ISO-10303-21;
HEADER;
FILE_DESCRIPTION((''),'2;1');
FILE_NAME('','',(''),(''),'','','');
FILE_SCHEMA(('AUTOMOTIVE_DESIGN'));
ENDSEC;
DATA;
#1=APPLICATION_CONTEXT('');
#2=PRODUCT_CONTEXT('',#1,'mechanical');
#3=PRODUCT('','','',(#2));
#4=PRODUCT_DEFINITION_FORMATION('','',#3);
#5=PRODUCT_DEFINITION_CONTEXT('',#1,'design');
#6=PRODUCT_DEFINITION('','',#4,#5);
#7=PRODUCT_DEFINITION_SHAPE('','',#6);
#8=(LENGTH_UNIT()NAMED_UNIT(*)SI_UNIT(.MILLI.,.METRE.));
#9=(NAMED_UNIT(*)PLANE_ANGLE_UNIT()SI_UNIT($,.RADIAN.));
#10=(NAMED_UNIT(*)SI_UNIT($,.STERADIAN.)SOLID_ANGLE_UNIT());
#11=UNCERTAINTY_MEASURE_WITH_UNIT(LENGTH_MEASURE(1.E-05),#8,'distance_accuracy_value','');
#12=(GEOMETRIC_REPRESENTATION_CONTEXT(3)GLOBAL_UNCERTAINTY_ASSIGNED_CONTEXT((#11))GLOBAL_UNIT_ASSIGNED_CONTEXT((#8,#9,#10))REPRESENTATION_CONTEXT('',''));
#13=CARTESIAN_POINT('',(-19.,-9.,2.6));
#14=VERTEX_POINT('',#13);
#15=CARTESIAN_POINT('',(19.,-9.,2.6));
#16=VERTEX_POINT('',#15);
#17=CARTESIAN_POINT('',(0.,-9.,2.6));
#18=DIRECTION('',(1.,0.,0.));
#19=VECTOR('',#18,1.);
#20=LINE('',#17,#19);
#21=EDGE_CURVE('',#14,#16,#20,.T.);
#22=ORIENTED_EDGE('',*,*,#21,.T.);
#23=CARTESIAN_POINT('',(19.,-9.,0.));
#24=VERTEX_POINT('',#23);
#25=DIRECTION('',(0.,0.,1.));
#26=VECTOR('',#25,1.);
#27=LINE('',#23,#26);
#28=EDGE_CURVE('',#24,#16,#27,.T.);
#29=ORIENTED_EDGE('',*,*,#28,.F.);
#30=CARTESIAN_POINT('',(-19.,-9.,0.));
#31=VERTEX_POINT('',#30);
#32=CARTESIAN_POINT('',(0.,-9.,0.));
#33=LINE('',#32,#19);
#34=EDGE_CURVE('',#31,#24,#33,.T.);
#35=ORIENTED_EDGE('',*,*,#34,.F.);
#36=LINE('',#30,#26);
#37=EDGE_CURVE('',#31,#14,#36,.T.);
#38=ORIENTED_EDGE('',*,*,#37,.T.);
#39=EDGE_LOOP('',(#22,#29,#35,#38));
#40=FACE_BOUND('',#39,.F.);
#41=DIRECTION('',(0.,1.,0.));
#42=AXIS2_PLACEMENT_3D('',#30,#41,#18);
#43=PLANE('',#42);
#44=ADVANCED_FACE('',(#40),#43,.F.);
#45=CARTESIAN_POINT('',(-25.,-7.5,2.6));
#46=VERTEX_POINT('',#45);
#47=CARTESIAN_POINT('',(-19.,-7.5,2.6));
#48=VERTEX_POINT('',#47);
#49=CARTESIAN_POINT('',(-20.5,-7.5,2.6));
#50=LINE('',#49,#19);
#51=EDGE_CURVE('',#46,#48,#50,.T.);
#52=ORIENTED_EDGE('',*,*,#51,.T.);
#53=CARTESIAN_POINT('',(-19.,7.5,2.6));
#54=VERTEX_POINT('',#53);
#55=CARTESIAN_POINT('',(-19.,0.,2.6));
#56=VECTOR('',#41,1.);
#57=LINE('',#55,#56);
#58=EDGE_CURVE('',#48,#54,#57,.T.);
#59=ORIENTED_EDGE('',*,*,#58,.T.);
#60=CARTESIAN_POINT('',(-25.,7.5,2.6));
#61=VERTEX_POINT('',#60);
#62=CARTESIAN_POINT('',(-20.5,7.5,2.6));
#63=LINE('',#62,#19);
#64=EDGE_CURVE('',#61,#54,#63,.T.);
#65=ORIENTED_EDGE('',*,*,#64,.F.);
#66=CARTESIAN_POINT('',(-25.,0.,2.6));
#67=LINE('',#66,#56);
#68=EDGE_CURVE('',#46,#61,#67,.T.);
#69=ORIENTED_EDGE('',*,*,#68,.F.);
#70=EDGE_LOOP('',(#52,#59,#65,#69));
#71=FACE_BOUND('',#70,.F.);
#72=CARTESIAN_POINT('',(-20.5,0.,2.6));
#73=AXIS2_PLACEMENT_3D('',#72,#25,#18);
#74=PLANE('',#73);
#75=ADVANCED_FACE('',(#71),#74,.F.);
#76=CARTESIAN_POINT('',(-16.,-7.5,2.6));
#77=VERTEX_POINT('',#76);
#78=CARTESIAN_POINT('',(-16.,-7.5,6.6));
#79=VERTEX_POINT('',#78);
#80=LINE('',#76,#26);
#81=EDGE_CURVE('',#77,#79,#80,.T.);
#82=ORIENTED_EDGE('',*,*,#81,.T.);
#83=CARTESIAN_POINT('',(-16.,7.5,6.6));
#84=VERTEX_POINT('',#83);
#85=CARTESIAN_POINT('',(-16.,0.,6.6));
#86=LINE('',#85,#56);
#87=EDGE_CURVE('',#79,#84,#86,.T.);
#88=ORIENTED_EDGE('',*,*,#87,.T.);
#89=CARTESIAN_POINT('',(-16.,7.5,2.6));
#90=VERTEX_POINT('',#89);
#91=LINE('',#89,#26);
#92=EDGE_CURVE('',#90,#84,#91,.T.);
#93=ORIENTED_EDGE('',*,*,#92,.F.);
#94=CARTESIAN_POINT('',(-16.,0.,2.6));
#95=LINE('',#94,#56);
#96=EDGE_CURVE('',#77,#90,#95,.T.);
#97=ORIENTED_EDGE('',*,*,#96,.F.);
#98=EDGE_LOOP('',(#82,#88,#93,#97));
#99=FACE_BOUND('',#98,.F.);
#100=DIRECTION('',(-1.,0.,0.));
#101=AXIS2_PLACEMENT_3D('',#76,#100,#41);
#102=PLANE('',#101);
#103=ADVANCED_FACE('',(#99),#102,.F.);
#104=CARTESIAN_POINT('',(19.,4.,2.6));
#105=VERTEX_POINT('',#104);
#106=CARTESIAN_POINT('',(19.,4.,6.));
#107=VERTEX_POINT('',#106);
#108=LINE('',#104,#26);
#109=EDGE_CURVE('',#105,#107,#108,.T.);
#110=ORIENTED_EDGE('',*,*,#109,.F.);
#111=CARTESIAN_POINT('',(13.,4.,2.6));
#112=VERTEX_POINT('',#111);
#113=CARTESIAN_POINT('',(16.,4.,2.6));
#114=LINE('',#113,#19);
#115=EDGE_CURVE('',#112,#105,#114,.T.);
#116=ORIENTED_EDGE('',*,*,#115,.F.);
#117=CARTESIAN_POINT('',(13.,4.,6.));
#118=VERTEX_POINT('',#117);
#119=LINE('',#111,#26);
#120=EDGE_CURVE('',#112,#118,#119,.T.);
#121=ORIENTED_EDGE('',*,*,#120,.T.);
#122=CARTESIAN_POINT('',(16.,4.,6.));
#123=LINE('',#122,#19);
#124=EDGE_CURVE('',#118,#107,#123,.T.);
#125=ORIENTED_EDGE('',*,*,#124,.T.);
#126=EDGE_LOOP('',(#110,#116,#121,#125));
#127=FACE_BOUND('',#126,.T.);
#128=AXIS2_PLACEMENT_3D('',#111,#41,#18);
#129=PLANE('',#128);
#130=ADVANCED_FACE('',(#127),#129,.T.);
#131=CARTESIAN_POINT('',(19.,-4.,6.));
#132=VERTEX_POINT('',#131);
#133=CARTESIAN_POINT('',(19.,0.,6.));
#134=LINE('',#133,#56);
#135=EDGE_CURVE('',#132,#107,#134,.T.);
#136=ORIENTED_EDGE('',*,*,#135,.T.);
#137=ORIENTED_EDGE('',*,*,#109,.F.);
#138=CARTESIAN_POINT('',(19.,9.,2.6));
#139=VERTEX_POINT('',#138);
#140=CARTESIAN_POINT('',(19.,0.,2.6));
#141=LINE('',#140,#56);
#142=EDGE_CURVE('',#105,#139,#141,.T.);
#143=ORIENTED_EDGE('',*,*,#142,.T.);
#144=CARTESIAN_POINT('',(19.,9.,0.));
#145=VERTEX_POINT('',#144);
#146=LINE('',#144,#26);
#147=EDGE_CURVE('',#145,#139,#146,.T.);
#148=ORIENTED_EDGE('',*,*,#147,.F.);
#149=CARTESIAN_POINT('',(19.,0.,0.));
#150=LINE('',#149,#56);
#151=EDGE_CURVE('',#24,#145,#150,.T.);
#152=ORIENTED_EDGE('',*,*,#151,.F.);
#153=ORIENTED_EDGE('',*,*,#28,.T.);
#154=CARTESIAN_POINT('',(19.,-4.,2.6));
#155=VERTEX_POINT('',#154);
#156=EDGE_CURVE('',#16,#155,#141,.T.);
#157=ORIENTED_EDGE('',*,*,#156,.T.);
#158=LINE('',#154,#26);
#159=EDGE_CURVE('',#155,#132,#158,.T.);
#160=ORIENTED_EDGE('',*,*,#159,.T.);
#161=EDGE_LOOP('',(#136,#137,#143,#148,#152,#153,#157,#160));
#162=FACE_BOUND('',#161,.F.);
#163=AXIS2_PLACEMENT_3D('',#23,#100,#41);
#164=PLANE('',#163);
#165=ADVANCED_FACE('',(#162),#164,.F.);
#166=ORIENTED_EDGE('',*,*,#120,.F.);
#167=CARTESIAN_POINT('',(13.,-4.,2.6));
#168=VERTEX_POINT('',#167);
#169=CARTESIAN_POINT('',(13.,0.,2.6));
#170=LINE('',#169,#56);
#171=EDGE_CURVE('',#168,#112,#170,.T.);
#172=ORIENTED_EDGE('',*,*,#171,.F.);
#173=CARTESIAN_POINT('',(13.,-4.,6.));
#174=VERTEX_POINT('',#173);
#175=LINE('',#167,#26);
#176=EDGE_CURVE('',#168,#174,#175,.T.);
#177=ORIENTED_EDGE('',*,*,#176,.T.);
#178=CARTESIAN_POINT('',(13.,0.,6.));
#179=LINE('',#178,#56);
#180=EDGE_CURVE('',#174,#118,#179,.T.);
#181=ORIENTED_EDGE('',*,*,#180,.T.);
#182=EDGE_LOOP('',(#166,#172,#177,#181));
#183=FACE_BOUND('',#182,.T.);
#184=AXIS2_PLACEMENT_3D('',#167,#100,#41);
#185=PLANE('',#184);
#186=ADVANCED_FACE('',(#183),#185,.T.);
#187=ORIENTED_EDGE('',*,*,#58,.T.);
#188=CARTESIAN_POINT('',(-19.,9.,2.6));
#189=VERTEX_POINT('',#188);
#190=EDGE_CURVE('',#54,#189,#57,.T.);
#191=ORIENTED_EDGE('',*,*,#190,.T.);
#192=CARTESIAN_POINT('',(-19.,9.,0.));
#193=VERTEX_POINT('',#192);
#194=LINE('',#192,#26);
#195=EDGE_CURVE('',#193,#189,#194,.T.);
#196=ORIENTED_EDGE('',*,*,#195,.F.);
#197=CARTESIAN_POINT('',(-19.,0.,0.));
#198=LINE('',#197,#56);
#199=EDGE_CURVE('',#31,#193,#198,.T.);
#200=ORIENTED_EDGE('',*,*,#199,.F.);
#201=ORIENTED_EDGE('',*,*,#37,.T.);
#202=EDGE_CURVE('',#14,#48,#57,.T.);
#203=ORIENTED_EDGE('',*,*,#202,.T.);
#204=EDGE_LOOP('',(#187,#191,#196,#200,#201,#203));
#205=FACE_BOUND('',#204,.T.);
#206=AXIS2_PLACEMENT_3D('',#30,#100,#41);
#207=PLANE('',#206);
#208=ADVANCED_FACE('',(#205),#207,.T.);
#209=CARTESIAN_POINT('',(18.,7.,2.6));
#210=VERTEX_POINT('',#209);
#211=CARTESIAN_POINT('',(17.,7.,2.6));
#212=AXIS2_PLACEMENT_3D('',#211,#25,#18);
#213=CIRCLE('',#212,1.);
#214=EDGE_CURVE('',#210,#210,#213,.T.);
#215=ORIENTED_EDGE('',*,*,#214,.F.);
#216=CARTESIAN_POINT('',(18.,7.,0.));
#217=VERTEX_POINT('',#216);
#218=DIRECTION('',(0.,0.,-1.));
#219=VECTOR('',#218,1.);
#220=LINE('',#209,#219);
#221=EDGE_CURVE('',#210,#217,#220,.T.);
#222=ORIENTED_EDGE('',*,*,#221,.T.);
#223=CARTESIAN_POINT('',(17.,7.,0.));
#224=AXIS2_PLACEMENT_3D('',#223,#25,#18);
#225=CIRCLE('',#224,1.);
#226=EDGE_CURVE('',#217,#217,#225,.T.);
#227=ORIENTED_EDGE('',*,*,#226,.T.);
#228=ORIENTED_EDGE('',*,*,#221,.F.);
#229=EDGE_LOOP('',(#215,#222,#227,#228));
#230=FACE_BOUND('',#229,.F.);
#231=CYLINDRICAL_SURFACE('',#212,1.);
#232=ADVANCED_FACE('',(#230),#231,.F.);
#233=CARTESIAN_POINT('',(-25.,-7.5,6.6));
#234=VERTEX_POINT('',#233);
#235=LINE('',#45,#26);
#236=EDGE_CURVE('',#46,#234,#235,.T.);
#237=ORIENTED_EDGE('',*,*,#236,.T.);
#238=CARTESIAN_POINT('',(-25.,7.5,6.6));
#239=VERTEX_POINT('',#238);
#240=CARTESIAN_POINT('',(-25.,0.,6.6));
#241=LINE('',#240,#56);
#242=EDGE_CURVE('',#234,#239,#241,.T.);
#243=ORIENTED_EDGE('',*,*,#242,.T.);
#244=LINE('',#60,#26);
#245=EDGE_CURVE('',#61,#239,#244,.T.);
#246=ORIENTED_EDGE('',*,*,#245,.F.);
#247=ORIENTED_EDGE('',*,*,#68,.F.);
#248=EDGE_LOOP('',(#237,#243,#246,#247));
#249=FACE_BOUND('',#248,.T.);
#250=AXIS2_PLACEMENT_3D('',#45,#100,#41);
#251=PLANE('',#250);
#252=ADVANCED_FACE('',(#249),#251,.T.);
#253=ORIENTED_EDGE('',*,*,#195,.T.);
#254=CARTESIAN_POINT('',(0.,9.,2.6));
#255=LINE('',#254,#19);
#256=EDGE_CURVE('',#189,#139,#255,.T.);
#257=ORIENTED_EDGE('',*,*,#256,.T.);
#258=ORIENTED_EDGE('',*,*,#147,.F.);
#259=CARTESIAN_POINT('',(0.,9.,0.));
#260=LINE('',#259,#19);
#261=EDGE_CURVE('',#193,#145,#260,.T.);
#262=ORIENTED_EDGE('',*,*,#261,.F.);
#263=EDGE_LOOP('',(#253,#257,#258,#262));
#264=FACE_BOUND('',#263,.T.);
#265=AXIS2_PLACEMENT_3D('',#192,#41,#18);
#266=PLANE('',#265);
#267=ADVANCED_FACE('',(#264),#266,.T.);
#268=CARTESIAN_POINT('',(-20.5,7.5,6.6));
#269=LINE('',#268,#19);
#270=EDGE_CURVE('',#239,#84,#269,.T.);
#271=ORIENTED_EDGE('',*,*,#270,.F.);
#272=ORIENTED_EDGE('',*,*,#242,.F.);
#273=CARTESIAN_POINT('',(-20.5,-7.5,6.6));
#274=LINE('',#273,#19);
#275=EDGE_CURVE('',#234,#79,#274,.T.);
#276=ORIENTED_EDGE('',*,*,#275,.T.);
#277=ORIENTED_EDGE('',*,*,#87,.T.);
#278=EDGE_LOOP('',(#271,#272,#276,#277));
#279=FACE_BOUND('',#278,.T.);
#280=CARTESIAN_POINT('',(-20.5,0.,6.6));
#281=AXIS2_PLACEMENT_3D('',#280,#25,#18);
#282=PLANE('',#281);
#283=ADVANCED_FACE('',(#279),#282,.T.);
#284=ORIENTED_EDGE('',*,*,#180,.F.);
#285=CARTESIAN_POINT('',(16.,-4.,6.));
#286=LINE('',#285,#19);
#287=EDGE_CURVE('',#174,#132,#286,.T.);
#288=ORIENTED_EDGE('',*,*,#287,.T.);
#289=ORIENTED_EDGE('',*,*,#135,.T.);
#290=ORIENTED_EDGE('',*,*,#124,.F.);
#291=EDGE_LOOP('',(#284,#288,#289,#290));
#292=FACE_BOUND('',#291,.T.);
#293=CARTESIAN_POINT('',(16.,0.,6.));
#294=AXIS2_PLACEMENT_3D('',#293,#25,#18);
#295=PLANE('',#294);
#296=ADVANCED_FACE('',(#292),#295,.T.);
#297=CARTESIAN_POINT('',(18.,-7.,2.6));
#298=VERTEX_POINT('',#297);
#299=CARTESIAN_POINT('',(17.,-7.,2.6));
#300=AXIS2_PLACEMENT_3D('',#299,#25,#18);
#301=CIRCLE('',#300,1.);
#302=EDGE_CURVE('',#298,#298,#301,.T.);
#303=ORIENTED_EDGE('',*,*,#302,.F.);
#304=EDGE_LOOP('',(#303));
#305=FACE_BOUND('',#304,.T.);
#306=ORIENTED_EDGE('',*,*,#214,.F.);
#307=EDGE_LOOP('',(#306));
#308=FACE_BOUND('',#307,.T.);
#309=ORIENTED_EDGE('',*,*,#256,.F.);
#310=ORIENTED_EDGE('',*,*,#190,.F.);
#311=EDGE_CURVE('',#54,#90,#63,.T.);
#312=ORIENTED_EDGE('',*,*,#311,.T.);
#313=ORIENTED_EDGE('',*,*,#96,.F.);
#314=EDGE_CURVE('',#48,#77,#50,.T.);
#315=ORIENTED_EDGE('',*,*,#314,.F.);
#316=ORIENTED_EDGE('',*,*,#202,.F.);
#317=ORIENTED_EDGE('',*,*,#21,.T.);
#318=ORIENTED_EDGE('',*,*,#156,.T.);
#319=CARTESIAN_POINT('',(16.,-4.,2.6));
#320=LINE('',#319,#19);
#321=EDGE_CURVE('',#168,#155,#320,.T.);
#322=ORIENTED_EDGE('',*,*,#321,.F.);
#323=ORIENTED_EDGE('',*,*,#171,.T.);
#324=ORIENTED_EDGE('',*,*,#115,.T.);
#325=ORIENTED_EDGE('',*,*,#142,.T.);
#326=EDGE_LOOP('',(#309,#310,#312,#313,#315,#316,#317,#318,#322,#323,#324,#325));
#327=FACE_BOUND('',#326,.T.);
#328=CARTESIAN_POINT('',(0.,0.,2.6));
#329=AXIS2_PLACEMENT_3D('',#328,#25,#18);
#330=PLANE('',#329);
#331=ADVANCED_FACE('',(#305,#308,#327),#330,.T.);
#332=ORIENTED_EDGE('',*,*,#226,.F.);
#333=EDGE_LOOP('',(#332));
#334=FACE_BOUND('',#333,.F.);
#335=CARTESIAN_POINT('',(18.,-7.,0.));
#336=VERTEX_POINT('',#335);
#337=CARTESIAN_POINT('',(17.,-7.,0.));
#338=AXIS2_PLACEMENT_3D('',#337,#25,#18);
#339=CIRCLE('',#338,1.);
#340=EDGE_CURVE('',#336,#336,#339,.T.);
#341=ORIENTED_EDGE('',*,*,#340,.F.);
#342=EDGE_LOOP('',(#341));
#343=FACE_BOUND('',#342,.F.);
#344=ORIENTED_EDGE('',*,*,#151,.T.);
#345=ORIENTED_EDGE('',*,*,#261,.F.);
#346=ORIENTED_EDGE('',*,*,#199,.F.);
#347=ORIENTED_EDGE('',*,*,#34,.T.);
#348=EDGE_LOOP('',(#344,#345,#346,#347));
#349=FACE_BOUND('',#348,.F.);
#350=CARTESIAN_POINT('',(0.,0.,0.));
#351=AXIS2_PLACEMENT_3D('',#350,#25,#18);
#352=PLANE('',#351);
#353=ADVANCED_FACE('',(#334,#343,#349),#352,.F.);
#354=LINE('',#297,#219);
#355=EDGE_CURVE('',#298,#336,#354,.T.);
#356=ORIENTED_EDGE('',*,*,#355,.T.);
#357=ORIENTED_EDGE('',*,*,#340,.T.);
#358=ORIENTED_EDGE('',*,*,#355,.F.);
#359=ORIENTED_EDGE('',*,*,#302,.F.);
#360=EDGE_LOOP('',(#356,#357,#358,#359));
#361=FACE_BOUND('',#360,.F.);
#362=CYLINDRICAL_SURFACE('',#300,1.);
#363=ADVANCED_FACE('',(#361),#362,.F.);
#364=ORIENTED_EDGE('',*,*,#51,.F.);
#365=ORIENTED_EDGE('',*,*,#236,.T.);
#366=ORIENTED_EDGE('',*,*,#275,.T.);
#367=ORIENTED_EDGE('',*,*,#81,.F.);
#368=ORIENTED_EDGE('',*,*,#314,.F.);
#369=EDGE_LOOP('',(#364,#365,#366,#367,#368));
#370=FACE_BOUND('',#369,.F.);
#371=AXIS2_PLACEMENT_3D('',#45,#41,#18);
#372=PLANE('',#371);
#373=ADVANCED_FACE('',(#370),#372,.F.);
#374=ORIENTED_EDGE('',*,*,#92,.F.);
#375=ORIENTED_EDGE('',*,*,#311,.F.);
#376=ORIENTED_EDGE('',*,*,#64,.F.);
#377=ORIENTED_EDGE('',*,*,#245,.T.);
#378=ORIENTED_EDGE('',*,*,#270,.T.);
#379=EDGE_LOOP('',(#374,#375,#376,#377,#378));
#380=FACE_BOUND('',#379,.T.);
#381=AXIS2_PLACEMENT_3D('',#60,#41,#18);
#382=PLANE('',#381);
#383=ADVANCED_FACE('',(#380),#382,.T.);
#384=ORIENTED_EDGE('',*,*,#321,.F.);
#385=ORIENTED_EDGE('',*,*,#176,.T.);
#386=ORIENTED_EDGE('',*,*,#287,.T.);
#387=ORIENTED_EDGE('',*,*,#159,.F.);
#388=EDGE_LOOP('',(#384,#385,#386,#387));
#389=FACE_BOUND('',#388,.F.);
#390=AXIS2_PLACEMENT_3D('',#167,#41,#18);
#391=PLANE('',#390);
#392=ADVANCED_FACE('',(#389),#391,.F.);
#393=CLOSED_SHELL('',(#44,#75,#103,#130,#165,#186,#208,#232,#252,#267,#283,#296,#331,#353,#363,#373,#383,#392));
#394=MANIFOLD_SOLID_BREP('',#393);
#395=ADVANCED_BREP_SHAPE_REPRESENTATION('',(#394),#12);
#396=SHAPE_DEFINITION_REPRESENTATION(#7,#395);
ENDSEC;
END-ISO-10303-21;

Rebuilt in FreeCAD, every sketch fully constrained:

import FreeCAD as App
import Part
import Sketcher

V = App.Vector
Q = App.Units.Quantity


def add_polygon(sketch, points):
    """Adds a closed chain of lines whose ends are joined by coincident constraints."""
    first, n = sketch.GeometryCount, len(points)
    for a, b in zip(points, points[1:] + points[:1]):
        sketch.addGeometry(Part.LineSegment(App.Vector(*a, 0), App.Vector(*b, 0)), False)
    for i in range(n):
        sketch.addConstraint(Sketcher.Constraint("Coincident", first + i, 2, first + (i + 1) % n, 1))

doc = App.newDocument("Part")
body = doc.addObject("PartDesign::Body", "Body")

# Sketch on XY plane
sketch1 = doc.addObject("Sketcher::SketchObject", "Sketch")
body.addObject(sketch1)
sketch1.AttachmentSupport = (doc.XY_Plane, [""])
sketch1.MapMode = "FlatFace"
add_polygon(sketch1, [(-19, 9), (-19, -9), (19, -9), (19, 9)])  # lines 0-3
sketch1.addConstraint(Sketcher.Constraint("Vertical", 0))
sketch1.addConstraint(Sketcher.Constraint("Horizontal", 1))
sketch1.addConstraint(Sketcher.Constraint("Vertical", 2))
sketch1.addConstraint(Sketcher.Constraint("Horizontal", 3))
sketch1.addConstraint(Sketcher.Constraint("Symmetric", 0, 2, 2, 2, -1, 1))
sketch1.addConstraint(Sketcher.Constraint("DistanceX", 1, 1, 1, 2, Q("38 mm")))
sketch1.addConstraint(Sketcher.Constraint("DistanceY", 0, 2, 0, 1, Q("18 mm")))
pad1 = doc.addObject("PartDesign::Pad", "Pad")
body.addObject(pad1)
pad1.Profile = sketch1
pad1.Length = 2.6

# Sketch on XY plane
sketch2 = doc.addObject("Sketcher::SketchObject", "Sketch001")
body.addObject(sketch2)
sketch2.AttachmentSupport = (doc.XY_Plane, [""])
sketch2.MapMode = "FlatFace"
sketch2.AttachmentOffset = App.Placement(V(0, 0, 2.6), App.Rotation())
sketch2.addGeometry(Part.Circle(V(17, 7, 0), V(0, 0, 1), 1), False)
sketch2.addGeometry(Part.Circle(V(17, -7, 0), V(0, 0, 1), 1), False)
sketch2.addConstraint(Sketcher.Constraint("Equal", 0, 1))
sketch2.addConstraint(Sketcher.Constraint("Symmetric", 0, 3, 1, 3, -1))
sketch2.addConstraint(Sketcher.Constraint("Diameter", 0, Q("2 mm")))
sketch2.addConstraint(Sketcher.Constraint("DistanceX", -1, 1, 0, 3, Q("17 mm")))
sketch2.addConstraint(Sketcher.Constraint("DistanceY", -1, 1, 0, 3, Q("7 mm")))
pocket1 = doc.addObject("PartDesign::Pocket", "Pocket")
body.addObject(pocket1)
pocket1.Profile = sketch2
pocket1.Type = "ThroughAll"

# Sketch on XY plane
sketch3 = doc.addObject("Sketcher::SketchObject", "Sketch002")
body.addObject(sketch3)
sketch3.AttachmentSupport = (doc.XY_Plane, [""])
sketch3.MapMode = "FlatFace"
sketch3.AttachmentOffset = App.Placement(V(0, 0, 2.6), App.Rotation())
add_polygon(sketch3, [(13, 4), (13, -4), (19, -4), (19, 4)])  # lines 0-3
sketch3.addConstraint(Sketcher.Constraint("Vertical", 0))
sketch3.addConstraint(Sketcher.Constraint("Horizontal", 1))
sketch3.addConstraint(Sketcher.Constraint("Vertical", 2))
sketch3.addConstraint(Sketcher.Constraint("Horizontal", 3))
sketch3.addConstraint(Sketcher.Constraint("DistanceX", 1, 1, 1, 2, Q("6 mm")))
sketch3.addConstraint(Sketcher.Constraint("DistanceY", 0, 2, 0, 1, Q("8 mm")))
sketch3.addConstraint(Sketcher.Constraint("DistanceX", -1, 1, 0, 2, Q("13 mm")))
sketch3.addConstraint(Sketcher.Constraint("DistanceY", 0, 2, -1, 1, Q("4 mm")))
pad2 = doc.addObject("PartDesign::Pad", "Pad001")
body.addObject(pad2)
pad2.Profile = sketch3
pad2.Length = 3.4

# Sketch on XY plane
sketch4 = doc.addObject("Sketcher::SketchObject", "Sketch003")
body.addObject(sketch4)
sketch4.AttachmentSupport = (doc.XY_Plane, [""])
sketch4.MapMode = "FlatFace"
sketch4.AttachmentOffset = App.Placement(V(0, 0, 2.6), App.Rotation())
add_polygon(sketch4, [(-25, 8), (-25, -8), (-16, -8), (-16, 8)])  # lines 0-3
sketch4.addConstraint(Sketcher.Constraint("Vertical", 0))
sketch4.addConstraint(Sketcher.Constraint("Horizontal", 1))
sketch4.addConstraint(Sketcher.Constraint("Vertical", 2))
sketch4.addConstraint(Sketcher.Constraint("Horizontal", 3))
sketch4.addConstraint(Sketcher.Constraint("DistanceX", 1, 1, 1, 2, Q("9 mm")))
sketch4.addConstraint(Sketcher.Constraint("DistanceY", 0, 2, 0, 1, Q("15 mm")))
sketch4.addConstraint(Sketcher.Constraint("DistanceX", 0, 2, -1, 1, Q("25 mm")))
sketch4.addConstraint(Sketcher.Constraint("DistanceY", 0, 2, -1, 1, Q("7.5 mm")))
pad3 = doc.addObject("PartDesign::Pad", "Pad002")
body.addObject(pad3)
pad3.Profile = sketch4
pad3.Length = 4

doc.recompute()
